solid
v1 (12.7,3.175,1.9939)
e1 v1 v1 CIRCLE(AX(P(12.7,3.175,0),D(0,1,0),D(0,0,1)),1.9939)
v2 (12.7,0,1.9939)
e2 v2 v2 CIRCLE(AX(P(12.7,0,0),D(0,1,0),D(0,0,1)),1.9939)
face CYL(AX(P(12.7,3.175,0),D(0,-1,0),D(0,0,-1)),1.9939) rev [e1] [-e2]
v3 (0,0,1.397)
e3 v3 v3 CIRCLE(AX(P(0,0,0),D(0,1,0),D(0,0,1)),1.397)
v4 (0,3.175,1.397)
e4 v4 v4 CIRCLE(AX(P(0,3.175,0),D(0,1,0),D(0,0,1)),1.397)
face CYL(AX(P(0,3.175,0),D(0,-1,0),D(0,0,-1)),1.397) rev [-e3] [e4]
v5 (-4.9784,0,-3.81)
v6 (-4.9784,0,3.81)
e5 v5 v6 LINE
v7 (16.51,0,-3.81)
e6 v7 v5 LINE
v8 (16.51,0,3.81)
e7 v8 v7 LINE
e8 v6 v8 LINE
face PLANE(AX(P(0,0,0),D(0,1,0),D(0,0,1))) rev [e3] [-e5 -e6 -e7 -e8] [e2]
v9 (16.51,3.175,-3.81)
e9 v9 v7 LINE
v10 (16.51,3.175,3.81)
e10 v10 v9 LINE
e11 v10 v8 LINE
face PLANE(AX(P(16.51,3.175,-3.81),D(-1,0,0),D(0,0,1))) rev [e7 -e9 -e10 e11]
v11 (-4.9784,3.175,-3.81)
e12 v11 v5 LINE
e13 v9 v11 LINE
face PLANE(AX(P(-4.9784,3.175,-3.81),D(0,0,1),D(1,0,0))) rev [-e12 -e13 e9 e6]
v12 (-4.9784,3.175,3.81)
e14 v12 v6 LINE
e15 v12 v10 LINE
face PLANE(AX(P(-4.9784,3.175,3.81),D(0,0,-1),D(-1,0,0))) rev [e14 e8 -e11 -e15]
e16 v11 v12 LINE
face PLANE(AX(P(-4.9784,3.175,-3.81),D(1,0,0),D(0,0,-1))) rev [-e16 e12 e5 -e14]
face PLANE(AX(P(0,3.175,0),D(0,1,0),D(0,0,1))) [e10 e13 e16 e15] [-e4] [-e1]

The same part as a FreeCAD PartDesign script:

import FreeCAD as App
import Part
import Sketcher
from FreeCAD import Vector
Q = App.Units.Quantity


def add_polygon(sketch, points):
    """Adds a closed chain of lines whose ends are joined by coincident constraints."""
    first, n = sketch.GeometryCount, len(points)
    for a, b in zip(points, points[1:] + points[:1]):
        sketch.addGeometry(Part.LineSegment(App.Vector(*a, 0), App.Vector(*b, 0)), False)
    for i in range(n):
        sketch.addConstraint(Sketcher.Constraint("Coincident", first + i, 2, first + (i + 1) % n, 1))

doc = App.newDocument("Part")
body = doc.addObject("PartDesign::Body", "Body")

sketch1 = body.newObject("Sketcher::SketchObject", "Sketch")
sketch1.AttachmentSupport = (doc.getObject("XZ_Plane"), [""])
sketch1.MapMode = "FlatFace"
add_polygon(sketch1, [(-5, -3.8), (-5, 3.8), (16.5, 3.8), (16.5, -3.8)])
sketch1.addGeometry(Part.Circle(Vector(0, 0, 0), Vector(0, 0, 1), 1.4), False)
sketch1.addGeometry(Part.Circle(Vector(12.7, 0, 0), Vector(0, 0, 1), 2), False)
sketch1.addConstraint(Sketcher.Constraint("Vertical", 0))
sketch1.addConstraint(Sketcher.Constraint("Horizontal", 1))
sketch1.addConstraint(Sketcher.Constraint("Vertical", 2))
sketch1.addConstraint(Sketcher.Constraint("Horizontal", 3))
sketch1.addConstraint(Sketcher.Constraint("Coincident", 4, 3, -1, 1))
sketch1.addConstraint(Sketcher.Constraint("PointOnObject", 5, 3, -1))
sketch1.addConstraint(Sketcher.Constraint("Diameter", 4, Q("0.11 in")))
sketch1.addConstraint(Sketcher.Constraint("Diameter", 5, Q("0.157 in")))
sketch1.addConstraint(Sketcher.Constraint("DistanceY", 0, 1, 0, 2, Q("0.3 in")))
sketch1.addConstraint(Sketcher.Constraint("DistanceX", -1, 1, 5, 3, Q("0.5 in")))
sketch1.addConstraint(Sketcher.Constraint("DistanceX", 1, 1, 1, 2, Q("0.846 in")))
sketch1.addConstraint(Sketcher.Constraint("DistanceY", -1, 1, 0, 2, Q("0.15 in")))
sketch1.addConstraint(Sketcher.Constraint("DistanceX", -1, 1, 1, 2, Q("0.65 in")))
pad1 = body.newObject("PartDesign::Pad", "Pad")
pad1.Profile = sketch1
pad1.Length = Q("0.125 in")
pad1.Reversed = True

doc.recompute()
